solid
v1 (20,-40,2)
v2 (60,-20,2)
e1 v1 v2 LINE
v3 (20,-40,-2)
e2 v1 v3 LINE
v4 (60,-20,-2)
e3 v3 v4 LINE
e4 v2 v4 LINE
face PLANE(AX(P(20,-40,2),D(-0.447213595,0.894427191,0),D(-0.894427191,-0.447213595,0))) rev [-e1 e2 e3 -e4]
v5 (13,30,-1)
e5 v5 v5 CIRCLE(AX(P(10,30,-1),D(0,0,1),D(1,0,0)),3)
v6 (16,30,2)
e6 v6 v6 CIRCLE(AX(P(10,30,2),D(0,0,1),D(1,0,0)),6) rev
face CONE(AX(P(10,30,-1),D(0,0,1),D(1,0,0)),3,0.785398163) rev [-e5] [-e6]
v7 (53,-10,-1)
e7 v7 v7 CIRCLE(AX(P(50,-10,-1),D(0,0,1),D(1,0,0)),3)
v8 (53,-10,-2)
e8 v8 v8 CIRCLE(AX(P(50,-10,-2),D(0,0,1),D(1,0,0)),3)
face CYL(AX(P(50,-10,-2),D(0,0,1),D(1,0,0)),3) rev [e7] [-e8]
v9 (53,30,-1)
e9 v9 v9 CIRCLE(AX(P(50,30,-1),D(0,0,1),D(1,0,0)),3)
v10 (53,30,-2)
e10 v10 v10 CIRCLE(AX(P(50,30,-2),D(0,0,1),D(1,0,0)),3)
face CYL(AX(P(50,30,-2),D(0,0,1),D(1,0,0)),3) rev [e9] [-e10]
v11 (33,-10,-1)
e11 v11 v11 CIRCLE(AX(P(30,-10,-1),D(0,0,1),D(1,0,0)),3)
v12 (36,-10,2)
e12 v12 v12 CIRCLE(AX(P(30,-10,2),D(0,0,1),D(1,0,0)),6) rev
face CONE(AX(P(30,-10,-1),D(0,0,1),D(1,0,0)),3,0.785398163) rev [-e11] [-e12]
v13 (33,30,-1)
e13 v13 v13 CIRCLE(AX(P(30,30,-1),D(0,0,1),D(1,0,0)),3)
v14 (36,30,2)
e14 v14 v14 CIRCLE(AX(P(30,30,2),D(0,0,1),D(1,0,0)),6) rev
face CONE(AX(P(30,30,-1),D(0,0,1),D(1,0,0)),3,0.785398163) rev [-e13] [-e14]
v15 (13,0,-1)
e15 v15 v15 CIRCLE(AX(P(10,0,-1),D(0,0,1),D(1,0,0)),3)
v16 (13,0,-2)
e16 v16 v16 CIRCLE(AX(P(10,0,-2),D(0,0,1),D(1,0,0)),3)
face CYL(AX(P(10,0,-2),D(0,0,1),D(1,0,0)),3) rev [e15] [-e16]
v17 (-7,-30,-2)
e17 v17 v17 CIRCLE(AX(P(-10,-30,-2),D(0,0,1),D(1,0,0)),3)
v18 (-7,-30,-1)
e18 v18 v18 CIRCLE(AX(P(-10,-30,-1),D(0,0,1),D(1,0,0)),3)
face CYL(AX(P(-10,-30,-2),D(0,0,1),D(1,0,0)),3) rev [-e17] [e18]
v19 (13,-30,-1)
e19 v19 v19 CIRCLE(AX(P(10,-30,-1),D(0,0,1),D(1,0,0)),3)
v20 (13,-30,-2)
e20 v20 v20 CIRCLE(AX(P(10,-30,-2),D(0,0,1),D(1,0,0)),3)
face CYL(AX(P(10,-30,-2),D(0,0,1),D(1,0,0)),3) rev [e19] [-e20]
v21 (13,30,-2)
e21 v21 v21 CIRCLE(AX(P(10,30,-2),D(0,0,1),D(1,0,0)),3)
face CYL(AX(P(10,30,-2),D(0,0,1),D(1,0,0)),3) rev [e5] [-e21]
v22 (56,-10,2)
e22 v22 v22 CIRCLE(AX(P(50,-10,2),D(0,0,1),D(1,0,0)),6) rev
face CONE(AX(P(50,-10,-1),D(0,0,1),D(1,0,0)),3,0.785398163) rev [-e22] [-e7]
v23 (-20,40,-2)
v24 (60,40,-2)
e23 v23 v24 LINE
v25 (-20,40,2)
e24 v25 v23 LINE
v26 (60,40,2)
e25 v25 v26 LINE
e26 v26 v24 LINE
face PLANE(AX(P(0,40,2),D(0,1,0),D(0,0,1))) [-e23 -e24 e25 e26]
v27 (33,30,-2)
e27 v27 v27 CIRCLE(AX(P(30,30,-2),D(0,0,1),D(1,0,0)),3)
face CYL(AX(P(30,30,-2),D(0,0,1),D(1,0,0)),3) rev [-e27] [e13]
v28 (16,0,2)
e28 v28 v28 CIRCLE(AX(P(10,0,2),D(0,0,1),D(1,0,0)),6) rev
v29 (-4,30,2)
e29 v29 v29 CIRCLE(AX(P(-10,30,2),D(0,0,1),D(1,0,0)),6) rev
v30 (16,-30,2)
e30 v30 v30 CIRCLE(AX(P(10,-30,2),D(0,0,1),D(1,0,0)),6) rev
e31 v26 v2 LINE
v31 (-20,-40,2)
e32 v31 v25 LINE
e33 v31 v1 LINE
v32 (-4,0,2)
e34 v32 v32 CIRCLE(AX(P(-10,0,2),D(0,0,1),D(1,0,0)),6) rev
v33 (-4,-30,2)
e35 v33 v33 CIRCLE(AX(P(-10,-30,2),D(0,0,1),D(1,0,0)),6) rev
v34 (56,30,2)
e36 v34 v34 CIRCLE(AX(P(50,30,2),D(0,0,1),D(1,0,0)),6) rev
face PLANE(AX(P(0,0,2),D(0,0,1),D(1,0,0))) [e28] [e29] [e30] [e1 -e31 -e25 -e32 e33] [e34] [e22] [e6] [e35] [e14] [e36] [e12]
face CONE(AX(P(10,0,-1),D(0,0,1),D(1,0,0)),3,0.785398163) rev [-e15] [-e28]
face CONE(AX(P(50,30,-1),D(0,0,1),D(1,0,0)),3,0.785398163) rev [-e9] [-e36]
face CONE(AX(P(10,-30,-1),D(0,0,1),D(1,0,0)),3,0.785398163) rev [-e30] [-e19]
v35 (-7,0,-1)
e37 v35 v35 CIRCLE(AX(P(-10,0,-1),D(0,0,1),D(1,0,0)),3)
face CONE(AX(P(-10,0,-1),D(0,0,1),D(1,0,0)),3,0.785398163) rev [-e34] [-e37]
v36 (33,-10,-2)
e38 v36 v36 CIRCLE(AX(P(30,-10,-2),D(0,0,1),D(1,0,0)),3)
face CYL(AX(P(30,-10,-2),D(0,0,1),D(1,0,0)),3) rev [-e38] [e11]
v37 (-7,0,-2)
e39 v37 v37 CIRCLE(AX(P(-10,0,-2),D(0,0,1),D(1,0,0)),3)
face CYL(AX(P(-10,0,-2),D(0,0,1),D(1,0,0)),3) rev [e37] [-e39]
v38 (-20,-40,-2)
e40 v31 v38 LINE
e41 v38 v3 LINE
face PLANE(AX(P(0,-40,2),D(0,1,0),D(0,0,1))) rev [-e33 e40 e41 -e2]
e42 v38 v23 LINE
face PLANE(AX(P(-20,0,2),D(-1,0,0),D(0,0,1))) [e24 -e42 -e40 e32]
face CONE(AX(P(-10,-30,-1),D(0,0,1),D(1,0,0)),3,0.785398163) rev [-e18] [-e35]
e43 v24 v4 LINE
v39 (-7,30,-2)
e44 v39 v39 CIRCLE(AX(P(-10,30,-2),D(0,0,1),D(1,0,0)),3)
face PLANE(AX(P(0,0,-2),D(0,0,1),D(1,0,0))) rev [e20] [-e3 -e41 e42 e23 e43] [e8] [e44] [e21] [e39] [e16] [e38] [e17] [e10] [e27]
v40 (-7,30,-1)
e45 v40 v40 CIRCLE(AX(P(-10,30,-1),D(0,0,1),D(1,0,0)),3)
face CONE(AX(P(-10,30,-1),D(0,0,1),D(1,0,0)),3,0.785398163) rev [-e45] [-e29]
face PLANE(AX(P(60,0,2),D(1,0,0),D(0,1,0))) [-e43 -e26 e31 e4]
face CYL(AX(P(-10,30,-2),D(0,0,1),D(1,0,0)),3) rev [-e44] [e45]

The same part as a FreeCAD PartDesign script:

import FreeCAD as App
import Part
import Sketcher
Q = App.Units.Quantity


def edges_at(feature, points):
    """Names of the edges that pass closest to the given points."""
    edges = feature.Shape.Edges
    near = lambda p: min(range(len(edges)), key=lambda i: edges[i].distToShape(Part.Vertex(*p))[0])
    return sorted({f"Edge{near(p) + 1}" for p in points})

doc = App.newDocument("Part")
body = doc.addObject("PartDesign::Body", "Body")

sketch1 = doc.addObject("Sketcher::SketchObject", "Sketch")
body.addObject(sketch1)
sketch1.AttachmentSupport = (doc.XY_Plane, [""])
sketch1.MapMode = "FlatFace"
sketch1.addGeometry(Part.LineSegment(App.Vector(-20, 40, 0), App.Vector(-20, -40, 0)), False)
sketch1.addGeometry(Part.LineSegment(App.Vector(-20, -40, 0), App.Vector(20, -40, 0)), False)
sketch1.addGeometry(Part.LineSegment(App.Vector(20, -40, 0), App.Vector(60, -20, 0)), False)
sketch1.addGeometry(Part.LineSegment(App.Vector(60, -20, 0), App.Vector(60, 40, 0)), False)
sketch1.addGeometry(Part.LineSegment(App.Vector(60, 40, 0), App.Vector(-20, 40, 0)), False)
sketch1.addConstraint(Sketcher.Constraint("Coincident", 0, 2, 1, 1))
sketch1.addConstraint(Sketcher.Constraint("Coincident", 1, 2, 2, 1))
sketch1.addConstraint(Sketcher.Constraint("Coincident", 2, 2, 3, 1))
sketch1.addConstraint(Sketcher.Constraint("Coincident", 3, 2, 4, 1))
sketch1.addConstraint(Sketcher.Constraint("Coincident", 4, 2, 0, 1))
sketch1.addConstraint(Sketcher.Constraint("Vertical", 0))
sketch1.addConstraint(Sketcher.Constraint("Horizontal", 1))
sketch1.addConstraint(Sketcher.Constraint("Vertical", 3))
sketch1.addConstraint(Sketcher.Constraint("Horizontal", 4))
sketch1.addConstraint(Sketcher.Constraint("Symmetric", 1, 2, 4, 2, -1, 1))
sketch1.addConstraint(Sketcher.Constraint("Equal", 4, 0))
sketch1.addConstraint(Sketcher.Constraint("DistanceX", 1, 1, 1, 2, Q("40 mm")))
sketch1.addConstraint(Sketcher.Constraint("DistanceX", 4, 2, 4, 1, Q("80 mm")))
sketch1.addConstraint(Sketcher.Constraint("DistanceY", 3, 1, 3, 2, Q("60 mm")))
pad1 = doc.addObject("PartDesign::Pad", "Pad")
body.addObject(pad1)
pad1.Profile = sketch1
pad1.Length = 4
pad1.Midplane = True

sketch2 = doc.addObject("Sketcher::SketchObject", "Sketch001")
body.addObject(sketch2)
sketch2.AttachmentSupport = (doc.XY_Plane, [""])
sketch2.MapMode = "FlatFace"
sketch2.AttachmentOffset = App.Placement(App.Vector(0, 0, 2), App.Rotation())
sketch2.addGeometry(Part.Circle(App.Vector(50, 30, 0), App.Vector(0, 0, 1), 3), False)
sketch2.addGeometry(Part.Circle(App.Vector(30, 30, 0), App.Vector(0, 0, 1), 3), False)
sketch2.addGeometry(Part.Circle(App.Vector(50, -10, 0), App.Vector(0, 0, 1), 3), False)
sketch2.addGeometry(Part.Circle(App.Vector(30, -10, 0), App.Vector(0, 0, 1), 3), False)
sketch2.addGeometry(Part.Circle(App.Vector(-10, 30, 0), App.Vector(0, 0, 1), 3), False)
sketch2.addGeometry(Part.Circle(App.Vector(10, 30, 0), App.Vector(0, 0, 1), 3), False)
sketch2.addGeometry(Part.Circle(App.Vector(-10, 0, 0), App.Vector(0, 0, 1), 3), False)
sketch2.addGeometry(Part.Circle(App.Vector(10, 0, 0), App.Vector(0, 0, 1), 3), False)
sketch2.addGeometry(Part.Circle(App.Vector(-10, -30, 0), App.Vector(0, 0, 1), 3), False)
sketch2.addGeometry(Part.Circle(App.Vector(10, -30, 0), App.Vector(0, 0, 1), 3), False)
sketch2.addConstraint(Sketcher.Constraint("Equal", 0, 1))
sketch2.addConstraint(Sketcher.Constraint("Equal", 1, 2))
sketch2.addConstraint(Sketcher.Constraint("Equal", 2, 3))
sketch2.addConstraint(Sketcher.Constraint("Equal", 3, 4))
sketch2.addConstraint(Sketcher.Constraint("Equal", 4, 5))
sketch2.addConstraint(Sketcher.Constraint("Equal", 5, 6))
sketch2.addConstraint(Sketcher.Constraint("Equal", 6, 7))
sketch2.addConstraint(Sketcher.Constraint("Equal", 7, 8))
sketch2.addConstraint(Sketcher.Constraint("Equal", 8, 9))
sketch2.addConstraint(Sketcher.Constraint("Symmetric", 6, 3, 7, 3, -1, 1))
sketch2.addConstraint(Sketcher.Constraint("Symmetric", 5, 3, 8, 3, -1, 1))
sketch2.addConstraint(Sketcher.Constraint("Symmetric", 4, 3, 9, 3, -1, 1))
sketch2.addConstraint(Sketcher.Constraint("Symmetric", 4, 3, 5, 3, -2))
sketch2.addConstraint(Sketcher.Constraint("PointOnObject", 6, 3, -1))
sketch2.addConstraint(Sketcher.Constraint("Horizontal", 0, 3, 1, 3))
sketch2.addConstraint(Sketcher.Constraint("Horizontal", 2, 3, 3, 3))
sketch2.addConstraint(Sketcher.Constraint("Horizontal", 1, 3, 4, 3))
sketch2.addConstraint(Sketcher.Constraint("Vertical", 0, 3, 2, 3))
sketch2.addConstraint(Sketcher.Constraint("Vertical", 1, 3, 3, 3))
sketch2.addConstraint(Sketcher.Constraint("Vertical", 4, 3, 6, 3))
sketch2.addConstraint(Sketcher.Constraint("Diameter", 0, Q("6 mm")))
sketch2.addConstraint(Sketcher.Constraint("DistanceX", -1, 1, 0, 3, Q("50 mm")))
sketch2.addConstraint(Sketcher.Constraint("DistanceY", -1, 1, 0, 3, Q("30 mm")))
sketch2.addConstraint(Sketcher.Constraint("DistanceX", -1, 1, 1, 3, Q("30 mm")))
sketch2.addConstraint(Sketcher.Constraint("DistanceY", 2, 3, -1, 1, Q("10 mm")))
sketch2.addConstraint(Sketcher.Constraint("DistanceX", 4, 3, -1, 1, Q("10 mm")))
pocket1 = doc.addObject("PartDesign::Pocket", "Pocket")
body.addObject(pocket1)
pocket1.Profile = sketch2
pocket1.Type = "ThroughAll"
doc.recompute()

chamfer = doc.addObject("PartDesign::Chamfer", "Chamfer")
body.addObject(chamfer)
chamfer.Base = (pocket1, edges_at(pocket1, [
    (7, 30, 2),
    (-13, 0, 2),
    (7, 0, 2),
    (-13, -30, 2),
    (27, 30, 2),
    (47, -10, 2),
    (27, -10, 2),
    (-13, 30, 2),
    (7, -30, 2),
    (47, 30, 2),
]))
chamfer.Size = 3

doc.recompute()
